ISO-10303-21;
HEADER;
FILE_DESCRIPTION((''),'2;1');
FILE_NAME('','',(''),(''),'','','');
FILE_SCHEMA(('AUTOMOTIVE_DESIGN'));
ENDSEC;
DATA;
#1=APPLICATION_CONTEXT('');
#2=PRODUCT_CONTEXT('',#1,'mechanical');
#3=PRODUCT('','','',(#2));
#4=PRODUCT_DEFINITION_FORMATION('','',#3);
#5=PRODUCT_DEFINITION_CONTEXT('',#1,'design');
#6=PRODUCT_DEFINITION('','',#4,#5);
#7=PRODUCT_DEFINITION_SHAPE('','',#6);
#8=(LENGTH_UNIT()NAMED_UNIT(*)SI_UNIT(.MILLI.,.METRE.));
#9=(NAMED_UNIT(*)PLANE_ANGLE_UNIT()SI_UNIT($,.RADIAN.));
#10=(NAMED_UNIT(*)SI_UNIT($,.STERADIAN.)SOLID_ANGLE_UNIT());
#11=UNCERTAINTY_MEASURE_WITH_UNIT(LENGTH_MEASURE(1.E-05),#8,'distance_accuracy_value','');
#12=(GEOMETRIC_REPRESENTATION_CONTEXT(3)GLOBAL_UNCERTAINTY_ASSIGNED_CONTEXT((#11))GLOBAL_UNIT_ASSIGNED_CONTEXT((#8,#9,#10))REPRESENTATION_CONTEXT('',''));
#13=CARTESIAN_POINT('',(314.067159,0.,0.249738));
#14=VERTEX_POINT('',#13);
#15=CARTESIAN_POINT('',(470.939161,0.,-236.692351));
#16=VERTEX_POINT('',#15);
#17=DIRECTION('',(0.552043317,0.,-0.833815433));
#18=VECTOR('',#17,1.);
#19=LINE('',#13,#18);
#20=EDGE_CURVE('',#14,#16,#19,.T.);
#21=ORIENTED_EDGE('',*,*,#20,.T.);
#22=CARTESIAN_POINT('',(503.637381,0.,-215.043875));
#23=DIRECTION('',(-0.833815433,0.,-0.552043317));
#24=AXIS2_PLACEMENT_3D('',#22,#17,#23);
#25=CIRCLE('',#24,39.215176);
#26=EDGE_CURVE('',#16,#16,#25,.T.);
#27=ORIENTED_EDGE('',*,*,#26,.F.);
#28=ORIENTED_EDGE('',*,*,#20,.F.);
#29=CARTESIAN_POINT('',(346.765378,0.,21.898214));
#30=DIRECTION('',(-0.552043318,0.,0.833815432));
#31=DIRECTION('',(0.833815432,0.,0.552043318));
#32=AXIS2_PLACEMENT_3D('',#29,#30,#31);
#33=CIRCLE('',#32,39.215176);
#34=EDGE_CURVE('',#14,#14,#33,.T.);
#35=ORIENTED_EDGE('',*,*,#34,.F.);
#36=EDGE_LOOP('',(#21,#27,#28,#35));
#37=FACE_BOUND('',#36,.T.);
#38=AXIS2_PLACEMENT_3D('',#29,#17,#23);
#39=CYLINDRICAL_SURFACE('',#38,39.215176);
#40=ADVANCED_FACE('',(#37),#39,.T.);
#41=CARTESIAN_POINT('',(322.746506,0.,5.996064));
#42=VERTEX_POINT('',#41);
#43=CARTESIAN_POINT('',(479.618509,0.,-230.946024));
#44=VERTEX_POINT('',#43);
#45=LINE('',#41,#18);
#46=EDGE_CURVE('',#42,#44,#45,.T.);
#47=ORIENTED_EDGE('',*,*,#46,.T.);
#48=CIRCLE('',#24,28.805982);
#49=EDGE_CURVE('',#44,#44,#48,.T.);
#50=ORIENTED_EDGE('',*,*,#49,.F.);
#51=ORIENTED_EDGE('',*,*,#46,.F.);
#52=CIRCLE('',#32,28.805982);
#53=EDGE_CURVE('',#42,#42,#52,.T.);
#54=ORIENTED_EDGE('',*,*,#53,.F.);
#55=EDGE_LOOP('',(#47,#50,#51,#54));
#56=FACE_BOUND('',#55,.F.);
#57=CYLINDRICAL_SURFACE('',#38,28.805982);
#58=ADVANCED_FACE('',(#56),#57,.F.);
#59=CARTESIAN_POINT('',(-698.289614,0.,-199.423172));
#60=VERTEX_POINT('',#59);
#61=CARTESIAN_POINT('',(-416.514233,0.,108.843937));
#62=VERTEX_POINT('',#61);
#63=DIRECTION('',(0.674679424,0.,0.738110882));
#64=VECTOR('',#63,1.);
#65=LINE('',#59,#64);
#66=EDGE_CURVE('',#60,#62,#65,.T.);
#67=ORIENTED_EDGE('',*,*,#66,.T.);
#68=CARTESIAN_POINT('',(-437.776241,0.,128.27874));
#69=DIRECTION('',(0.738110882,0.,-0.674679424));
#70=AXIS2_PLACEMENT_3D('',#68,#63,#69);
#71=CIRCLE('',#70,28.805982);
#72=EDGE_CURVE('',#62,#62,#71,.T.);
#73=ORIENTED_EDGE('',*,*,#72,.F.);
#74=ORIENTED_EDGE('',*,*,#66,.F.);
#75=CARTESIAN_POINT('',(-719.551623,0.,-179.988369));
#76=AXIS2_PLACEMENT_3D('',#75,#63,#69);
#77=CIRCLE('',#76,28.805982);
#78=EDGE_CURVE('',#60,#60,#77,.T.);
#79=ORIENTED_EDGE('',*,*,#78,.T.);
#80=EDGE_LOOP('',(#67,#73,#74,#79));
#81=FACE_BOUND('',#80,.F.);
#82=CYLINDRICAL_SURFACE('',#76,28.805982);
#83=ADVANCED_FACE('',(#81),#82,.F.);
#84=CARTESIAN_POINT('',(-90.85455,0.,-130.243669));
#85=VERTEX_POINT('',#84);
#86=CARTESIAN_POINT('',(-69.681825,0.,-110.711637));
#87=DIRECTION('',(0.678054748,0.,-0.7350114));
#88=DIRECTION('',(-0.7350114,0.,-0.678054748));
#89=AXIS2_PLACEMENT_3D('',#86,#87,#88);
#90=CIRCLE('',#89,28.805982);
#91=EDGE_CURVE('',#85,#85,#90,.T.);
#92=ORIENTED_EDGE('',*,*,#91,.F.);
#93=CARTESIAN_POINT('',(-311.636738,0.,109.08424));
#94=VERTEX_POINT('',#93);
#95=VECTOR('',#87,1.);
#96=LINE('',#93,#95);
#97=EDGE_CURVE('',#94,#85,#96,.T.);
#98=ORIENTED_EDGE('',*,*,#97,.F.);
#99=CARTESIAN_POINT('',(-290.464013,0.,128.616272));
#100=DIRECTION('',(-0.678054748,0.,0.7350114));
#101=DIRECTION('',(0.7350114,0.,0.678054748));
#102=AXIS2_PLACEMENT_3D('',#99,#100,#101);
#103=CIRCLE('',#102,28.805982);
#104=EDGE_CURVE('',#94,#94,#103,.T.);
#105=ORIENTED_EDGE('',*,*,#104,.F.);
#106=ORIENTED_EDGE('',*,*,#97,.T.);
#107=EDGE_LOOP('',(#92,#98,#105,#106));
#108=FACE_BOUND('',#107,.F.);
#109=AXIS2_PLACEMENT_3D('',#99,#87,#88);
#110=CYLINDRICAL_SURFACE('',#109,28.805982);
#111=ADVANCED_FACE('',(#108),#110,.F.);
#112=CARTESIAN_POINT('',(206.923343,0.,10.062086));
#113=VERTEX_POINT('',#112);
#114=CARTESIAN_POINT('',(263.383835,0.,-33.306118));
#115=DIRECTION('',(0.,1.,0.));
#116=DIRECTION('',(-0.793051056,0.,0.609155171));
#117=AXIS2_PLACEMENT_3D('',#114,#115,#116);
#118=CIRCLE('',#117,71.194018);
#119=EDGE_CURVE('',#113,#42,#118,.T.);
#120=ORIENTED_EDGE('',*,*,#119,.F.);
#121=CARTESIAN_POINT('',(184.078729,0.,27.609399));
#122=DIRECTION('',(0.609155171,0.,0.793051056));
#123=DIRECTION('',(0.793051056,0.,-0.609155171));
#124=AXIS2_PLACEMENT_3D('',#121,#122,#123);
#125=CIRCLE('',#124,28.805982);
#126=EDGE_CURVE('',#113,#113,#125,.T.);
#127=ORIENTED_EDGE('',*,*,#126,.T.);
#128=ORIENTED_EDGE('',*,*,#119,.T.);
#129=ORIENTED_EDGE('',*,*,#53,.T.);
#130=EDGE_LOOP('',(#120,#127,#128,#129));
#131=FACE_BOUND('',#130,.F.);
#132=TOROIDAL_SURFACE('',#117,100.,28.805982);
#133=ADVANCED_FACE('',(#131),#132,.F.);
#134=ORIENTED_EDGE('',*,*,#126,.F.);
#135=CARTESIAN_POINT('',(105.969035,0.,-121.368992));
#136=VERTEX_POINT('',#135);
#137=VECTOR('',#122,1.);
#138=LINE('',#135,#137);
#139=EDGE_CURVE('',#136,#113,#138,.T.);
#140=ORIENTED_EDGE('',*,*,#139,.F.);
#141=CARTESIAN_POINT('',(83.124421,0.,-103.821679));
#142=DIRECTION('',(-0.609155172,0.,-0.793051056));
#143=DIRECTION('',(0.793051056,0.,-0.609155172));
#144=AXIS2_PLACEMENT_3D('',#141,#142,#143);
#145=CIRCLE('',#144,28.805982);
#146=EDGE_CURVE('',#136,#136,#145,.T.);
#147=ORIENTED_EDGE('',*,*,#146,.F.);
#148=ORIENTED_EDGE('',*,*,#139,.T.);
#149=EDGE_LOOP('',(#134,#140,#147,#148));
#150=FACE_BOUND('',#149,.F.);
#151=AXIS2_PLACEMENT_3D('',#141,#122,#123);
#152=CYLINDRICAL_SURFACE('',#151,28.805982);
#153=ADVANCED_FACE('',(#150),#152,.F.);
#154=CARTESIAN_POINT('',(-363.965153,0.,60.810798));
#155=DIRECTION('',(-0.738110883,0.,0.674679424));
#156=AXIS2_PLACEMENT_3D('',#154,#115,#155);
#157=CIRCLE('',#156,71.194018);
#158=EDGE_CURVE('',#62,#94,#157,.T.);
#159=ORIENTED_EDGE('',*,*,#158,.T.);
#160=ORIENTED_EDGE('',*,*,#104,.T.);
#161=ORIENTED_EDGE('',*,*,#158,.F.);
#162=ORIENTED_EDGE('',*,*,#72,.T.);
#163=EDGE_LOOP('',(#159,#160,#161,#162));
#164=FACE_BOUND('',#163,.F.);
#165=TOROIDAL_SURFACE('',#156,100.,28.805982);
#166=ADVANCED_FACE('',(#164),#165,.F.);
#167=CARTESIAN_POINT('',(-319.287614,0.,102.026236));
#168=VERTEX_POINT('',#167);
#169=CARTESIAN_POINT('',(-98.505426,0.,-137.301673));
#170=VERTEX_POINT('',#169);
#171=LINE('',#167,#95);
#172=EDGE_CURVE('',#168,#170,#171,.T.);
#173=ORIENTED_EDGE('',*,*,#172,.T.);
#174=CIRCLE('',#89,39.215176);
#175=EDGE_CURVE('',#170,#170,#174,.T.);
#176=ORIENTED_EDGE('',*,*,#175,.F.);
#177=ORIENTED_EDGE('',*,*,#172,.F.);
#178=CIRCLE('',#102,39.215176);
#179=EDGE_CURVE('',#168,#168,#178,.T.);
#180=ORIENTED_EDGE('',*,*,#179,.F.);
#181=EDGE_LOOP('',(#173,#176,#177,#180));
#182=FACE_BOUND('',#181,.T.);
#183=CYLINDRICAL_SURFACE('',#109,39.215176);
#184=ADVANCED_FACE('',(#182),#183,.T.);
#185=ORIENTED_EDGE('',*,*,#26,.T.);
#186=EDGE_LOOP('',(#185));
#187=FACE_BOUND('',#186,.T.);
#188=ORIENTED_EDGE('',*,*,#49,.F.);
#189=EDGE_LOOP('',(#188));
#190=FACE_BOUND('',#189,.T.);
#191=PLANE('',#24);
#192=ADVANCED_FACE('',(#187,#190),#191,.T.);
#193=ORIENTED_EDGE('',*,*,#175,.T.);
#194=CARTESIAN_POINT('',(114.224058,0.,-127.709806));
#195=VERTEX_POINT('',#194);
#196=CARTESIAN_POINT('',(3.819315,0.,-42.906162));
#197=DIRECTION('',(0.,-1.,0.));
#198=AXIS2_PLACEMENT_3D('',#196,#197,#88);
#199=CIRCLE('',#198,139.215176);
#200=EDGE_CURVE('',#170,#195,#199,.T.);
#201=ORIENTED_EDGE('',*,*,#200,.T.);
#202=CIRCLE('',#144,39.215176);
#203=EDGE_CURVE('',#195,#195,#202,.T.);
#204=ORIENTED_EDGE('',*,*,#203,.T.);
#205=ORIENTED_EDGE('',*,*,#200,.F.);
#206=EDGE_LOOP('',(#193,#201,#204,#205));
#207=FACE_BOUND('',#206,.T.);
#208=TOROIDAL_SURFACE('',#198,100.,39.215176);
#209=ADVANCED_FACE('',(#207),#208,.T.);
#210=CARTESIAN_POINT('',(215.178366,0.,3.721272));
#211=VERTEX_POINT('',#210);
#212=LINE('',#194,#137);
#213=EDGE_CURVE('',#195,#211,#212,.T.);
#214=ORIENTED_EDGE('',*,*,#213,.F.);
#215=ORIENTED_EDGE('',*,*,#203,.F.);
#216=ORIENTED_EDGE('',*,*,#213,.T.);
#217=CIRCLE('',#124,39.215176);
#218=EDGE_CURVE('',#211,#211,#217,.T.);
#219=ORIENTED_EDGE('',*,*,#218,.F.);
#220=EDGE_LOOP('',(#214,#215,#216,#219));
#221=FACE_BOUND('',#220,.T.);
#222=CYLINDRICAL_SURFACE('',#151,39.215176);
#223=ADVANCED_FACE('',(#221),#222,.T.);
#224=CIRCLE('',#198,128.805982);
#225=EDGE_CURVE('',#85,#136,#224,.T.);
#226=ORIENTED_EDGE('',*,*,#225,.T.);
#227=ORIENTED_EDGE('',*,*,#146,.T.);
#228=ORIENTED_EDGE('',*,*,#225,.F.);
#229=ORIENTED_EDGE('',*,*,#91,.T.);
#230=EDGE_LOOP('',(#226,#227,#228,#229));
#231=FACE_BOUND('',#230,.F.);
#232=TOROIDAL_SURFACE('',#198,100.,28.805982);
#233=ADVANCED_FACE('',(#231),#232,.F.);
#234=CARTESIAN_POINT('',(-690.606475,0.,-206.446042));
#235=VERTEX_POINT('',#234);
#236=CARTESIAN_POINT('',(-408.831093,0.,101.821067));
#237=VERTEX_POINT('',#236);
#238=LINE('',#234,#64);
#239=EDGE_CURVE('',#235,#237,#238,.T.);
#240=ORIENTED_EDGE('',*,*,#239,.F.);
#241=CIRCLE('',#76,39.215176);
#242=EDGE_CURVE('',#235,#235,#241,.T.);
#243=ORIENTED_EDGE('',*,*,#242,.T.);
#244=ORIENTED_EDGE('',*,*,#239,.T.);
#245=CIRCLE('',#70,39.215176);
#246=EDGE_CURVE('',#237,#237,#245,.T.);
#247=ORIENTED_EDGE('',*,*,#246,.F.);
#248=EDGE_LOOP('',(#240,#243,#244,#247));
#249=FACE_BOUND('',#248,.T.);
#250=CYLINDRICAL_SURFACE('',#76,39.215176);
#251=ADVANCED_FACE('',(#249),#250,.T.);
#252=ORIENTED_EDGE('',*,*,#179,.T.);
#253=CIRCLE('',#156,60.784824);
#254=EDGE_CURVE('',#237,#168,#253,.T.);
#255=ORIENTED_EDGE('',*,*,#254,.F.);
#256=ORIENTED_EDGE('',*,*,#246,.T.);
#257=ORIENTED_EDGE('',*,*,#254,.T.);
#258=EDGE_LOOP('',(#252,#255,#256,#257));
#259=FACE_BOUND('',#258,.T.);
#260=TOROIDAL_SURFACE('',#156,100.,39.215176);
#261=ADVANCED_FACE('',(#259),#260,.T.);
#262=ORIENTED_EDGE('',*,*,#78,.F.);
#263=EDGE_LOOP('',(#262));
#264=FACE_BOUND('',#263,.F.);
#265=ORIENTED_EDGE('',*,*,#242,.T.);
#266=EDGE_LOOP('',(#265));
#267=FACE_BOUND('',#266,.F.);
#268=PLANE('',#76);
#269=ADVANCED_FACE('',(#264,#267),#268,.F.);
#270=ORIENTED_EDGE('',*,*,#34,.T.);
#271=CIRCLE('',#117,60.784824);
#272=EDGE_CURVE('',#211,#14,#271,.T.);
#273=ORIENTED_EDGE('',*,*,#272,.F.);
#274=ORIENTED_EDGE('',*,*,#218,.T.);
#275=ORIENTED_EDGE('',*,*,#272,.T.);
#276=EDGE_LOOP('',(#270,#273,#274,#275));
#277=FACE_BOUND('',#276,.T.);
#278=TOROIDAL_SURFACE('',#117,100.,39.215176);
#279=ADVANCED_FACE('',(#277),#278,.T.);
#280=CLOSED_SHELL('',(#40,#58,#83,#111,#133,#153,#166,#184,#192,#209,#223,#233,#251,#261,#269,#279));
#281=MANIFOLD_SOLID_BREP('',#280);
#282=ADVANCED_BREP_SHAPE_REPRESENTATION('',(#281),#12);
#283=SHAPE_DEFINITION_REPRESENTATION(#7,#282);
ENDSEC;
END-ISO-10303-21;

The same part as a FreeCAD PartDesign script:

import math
import FreeCAD as App
import Part
import Sketcher
Q = App.Units.Quantity

doc = App.newDocument("Part")
body = doc.addObject("PartDesign::Body", "Body")

sketch1 = body.newObject("Sketcher::SketchObject", "Sketch")
sketch1.Placement = App.Placement(App.Vector(-417.166465, 0, -456.38728), App.Rotation(App.Vector(0.738110882, 0, -0.674679424), App.Vector(0, 0.999999999, 0), App.Vector(0.674679424, 0, 0.738110882), "ZXY"))
sketch1.addGeometry([
    Part.Circle(App.Vector(-409.674434, 0, 0), App.Vector(0, 0, 1), 39.215176),
    Part.Circle(App.Vector(-409.674434, 0, 0), App.Vector(0, 0, 1), 28.805982),
], False)
sketch1.addConstraint([
    Sketcher.Constraint("Coincident", 1, 3, 0, 3),
    Sketcher.Constraint("PointOnObject", 0, 3, -1),
    Sketcher.Constraint("Diameter", 0, Q("78.430352 mm")),
    Sketcher.Constraint("Diameter", 1, Q("57.611963 mm")),
    Sketcher.Constraint("DistanceX", 0, 3, -1, 1, Q("409.674434 mm")),
])

sketch2 = body.newObject("Sketcher::SketchObject", "Sketch001")
sketch2.AttachmentSupport = (doc.getObject("XZ_Plane"), [""])
sketch2.MapMode = "FlatFace"
sketch2.addGeometry([
    Part.LineSegment(App.Vector(-719.551623, -179.988369, 0), App.Vector(-437.776241, 128.27874, 0)),
    Part.ArcOfCircle(Part.Circle(App.Vector(-363.965153, 60.810798, 0), App.Vector(0, 0, 1), 100), math.radians(42.691821), math.radians(137.570739)),
    Part.LineSegment(App.Vector(-290.464013, 128.616272, 0), App.Vector(-69.681825, -110.711637, 0)),
    Part.ArcOfCircle(Part.Circle(App.Vector(3.819315, -42.906162, 0), App.Vector(0, 0, 1), 100), math.radians(-137.308179), math.radians(-37.528441)),
    Part.LineSegment(App.Vector(83.124421, -103.821679, 0), App.Vector(184.078729, 27.609399, 0)),
    Part.ArcOfCircle(Part.Circle(App.Vector(263.383835, -33.306118, 0), App.Vector(0, 0, 1), 100), math.radians(33.507306), math.radians(142.471559)),
    Part.LineSegment(App.Vector(346.765378, 21.898214, 0), App.Vector(503.637381, -215.043875, 0)),
], False)
sketch2.addConstraint([
    Sketcher.Constraint("Tangent", 0, 2, 1, 2),
    Sketcher.Constraint("Tangent", 1, 1, 2, 1),
    Sketcher.Constraint("Tangent", 2, 2, 3, 1),
    Sketcher.Constraint("Tangent", 3, 2, 4, 1),
    Sketcher.Constraint("Tangent", 4, 2, 5, 2),
    Sketcher.Constraint("Tangent", 5, 1, 6, 1),
    Sketcher.Constraint("Equal", 1, 3),
    Sketcher.Constraint("Equal", 3, 5),
    Sketcher.Constraint("Radius", 1, Q("100 mm")),
    Sketcher.Constraint("DistanceY", -1, 1, 4, 2, Q("27.609399 mm")),
    Sketcher.Constraint("DistanceY", 3, 3, 0, 2, Q("171.184902 mm")),
    Sketcher.Constraint("Distance", 0, Q("417.64336 mm")),
    Sketcher.Constraint("Distance", 6, Q("284.166111 mm")),
    Sketcher.Constraint("DistanceY", 3, 3, -1, 1, Q("42.906162 mm")),
    Sketcher.Constraint("DistanceY", 5, 3, -1, 1, Q("33.306118 mm")),
    Sketcher.Constraint("DistanceY", 0, 1, -1, 1, Q("179.988369 mm")),
    Sketcher.Constraint("DistanceX", 0, 2, -1, 1, Q("437.776241 mm")),
    Sketcher.Constraint("DistanceX", -1, 1, 3, 2, Q("83.124421 mm")),
    Sketcher.Constraint("DistanceX", -1, 1, 5, 1, Q("346.765378 mm")),
])
doc.recompute()

additivepipe = body.newObject("PartDesign::AdditivePipe", "AdditivePipe")
additivepipe.Profile = sketch1
additivepipe.Spine = (sketch2, ["Edge1", "Edge2", "Edge3", "Edge4", "Edge5", "Edge6", "Edge7"])

doc.recompute()
